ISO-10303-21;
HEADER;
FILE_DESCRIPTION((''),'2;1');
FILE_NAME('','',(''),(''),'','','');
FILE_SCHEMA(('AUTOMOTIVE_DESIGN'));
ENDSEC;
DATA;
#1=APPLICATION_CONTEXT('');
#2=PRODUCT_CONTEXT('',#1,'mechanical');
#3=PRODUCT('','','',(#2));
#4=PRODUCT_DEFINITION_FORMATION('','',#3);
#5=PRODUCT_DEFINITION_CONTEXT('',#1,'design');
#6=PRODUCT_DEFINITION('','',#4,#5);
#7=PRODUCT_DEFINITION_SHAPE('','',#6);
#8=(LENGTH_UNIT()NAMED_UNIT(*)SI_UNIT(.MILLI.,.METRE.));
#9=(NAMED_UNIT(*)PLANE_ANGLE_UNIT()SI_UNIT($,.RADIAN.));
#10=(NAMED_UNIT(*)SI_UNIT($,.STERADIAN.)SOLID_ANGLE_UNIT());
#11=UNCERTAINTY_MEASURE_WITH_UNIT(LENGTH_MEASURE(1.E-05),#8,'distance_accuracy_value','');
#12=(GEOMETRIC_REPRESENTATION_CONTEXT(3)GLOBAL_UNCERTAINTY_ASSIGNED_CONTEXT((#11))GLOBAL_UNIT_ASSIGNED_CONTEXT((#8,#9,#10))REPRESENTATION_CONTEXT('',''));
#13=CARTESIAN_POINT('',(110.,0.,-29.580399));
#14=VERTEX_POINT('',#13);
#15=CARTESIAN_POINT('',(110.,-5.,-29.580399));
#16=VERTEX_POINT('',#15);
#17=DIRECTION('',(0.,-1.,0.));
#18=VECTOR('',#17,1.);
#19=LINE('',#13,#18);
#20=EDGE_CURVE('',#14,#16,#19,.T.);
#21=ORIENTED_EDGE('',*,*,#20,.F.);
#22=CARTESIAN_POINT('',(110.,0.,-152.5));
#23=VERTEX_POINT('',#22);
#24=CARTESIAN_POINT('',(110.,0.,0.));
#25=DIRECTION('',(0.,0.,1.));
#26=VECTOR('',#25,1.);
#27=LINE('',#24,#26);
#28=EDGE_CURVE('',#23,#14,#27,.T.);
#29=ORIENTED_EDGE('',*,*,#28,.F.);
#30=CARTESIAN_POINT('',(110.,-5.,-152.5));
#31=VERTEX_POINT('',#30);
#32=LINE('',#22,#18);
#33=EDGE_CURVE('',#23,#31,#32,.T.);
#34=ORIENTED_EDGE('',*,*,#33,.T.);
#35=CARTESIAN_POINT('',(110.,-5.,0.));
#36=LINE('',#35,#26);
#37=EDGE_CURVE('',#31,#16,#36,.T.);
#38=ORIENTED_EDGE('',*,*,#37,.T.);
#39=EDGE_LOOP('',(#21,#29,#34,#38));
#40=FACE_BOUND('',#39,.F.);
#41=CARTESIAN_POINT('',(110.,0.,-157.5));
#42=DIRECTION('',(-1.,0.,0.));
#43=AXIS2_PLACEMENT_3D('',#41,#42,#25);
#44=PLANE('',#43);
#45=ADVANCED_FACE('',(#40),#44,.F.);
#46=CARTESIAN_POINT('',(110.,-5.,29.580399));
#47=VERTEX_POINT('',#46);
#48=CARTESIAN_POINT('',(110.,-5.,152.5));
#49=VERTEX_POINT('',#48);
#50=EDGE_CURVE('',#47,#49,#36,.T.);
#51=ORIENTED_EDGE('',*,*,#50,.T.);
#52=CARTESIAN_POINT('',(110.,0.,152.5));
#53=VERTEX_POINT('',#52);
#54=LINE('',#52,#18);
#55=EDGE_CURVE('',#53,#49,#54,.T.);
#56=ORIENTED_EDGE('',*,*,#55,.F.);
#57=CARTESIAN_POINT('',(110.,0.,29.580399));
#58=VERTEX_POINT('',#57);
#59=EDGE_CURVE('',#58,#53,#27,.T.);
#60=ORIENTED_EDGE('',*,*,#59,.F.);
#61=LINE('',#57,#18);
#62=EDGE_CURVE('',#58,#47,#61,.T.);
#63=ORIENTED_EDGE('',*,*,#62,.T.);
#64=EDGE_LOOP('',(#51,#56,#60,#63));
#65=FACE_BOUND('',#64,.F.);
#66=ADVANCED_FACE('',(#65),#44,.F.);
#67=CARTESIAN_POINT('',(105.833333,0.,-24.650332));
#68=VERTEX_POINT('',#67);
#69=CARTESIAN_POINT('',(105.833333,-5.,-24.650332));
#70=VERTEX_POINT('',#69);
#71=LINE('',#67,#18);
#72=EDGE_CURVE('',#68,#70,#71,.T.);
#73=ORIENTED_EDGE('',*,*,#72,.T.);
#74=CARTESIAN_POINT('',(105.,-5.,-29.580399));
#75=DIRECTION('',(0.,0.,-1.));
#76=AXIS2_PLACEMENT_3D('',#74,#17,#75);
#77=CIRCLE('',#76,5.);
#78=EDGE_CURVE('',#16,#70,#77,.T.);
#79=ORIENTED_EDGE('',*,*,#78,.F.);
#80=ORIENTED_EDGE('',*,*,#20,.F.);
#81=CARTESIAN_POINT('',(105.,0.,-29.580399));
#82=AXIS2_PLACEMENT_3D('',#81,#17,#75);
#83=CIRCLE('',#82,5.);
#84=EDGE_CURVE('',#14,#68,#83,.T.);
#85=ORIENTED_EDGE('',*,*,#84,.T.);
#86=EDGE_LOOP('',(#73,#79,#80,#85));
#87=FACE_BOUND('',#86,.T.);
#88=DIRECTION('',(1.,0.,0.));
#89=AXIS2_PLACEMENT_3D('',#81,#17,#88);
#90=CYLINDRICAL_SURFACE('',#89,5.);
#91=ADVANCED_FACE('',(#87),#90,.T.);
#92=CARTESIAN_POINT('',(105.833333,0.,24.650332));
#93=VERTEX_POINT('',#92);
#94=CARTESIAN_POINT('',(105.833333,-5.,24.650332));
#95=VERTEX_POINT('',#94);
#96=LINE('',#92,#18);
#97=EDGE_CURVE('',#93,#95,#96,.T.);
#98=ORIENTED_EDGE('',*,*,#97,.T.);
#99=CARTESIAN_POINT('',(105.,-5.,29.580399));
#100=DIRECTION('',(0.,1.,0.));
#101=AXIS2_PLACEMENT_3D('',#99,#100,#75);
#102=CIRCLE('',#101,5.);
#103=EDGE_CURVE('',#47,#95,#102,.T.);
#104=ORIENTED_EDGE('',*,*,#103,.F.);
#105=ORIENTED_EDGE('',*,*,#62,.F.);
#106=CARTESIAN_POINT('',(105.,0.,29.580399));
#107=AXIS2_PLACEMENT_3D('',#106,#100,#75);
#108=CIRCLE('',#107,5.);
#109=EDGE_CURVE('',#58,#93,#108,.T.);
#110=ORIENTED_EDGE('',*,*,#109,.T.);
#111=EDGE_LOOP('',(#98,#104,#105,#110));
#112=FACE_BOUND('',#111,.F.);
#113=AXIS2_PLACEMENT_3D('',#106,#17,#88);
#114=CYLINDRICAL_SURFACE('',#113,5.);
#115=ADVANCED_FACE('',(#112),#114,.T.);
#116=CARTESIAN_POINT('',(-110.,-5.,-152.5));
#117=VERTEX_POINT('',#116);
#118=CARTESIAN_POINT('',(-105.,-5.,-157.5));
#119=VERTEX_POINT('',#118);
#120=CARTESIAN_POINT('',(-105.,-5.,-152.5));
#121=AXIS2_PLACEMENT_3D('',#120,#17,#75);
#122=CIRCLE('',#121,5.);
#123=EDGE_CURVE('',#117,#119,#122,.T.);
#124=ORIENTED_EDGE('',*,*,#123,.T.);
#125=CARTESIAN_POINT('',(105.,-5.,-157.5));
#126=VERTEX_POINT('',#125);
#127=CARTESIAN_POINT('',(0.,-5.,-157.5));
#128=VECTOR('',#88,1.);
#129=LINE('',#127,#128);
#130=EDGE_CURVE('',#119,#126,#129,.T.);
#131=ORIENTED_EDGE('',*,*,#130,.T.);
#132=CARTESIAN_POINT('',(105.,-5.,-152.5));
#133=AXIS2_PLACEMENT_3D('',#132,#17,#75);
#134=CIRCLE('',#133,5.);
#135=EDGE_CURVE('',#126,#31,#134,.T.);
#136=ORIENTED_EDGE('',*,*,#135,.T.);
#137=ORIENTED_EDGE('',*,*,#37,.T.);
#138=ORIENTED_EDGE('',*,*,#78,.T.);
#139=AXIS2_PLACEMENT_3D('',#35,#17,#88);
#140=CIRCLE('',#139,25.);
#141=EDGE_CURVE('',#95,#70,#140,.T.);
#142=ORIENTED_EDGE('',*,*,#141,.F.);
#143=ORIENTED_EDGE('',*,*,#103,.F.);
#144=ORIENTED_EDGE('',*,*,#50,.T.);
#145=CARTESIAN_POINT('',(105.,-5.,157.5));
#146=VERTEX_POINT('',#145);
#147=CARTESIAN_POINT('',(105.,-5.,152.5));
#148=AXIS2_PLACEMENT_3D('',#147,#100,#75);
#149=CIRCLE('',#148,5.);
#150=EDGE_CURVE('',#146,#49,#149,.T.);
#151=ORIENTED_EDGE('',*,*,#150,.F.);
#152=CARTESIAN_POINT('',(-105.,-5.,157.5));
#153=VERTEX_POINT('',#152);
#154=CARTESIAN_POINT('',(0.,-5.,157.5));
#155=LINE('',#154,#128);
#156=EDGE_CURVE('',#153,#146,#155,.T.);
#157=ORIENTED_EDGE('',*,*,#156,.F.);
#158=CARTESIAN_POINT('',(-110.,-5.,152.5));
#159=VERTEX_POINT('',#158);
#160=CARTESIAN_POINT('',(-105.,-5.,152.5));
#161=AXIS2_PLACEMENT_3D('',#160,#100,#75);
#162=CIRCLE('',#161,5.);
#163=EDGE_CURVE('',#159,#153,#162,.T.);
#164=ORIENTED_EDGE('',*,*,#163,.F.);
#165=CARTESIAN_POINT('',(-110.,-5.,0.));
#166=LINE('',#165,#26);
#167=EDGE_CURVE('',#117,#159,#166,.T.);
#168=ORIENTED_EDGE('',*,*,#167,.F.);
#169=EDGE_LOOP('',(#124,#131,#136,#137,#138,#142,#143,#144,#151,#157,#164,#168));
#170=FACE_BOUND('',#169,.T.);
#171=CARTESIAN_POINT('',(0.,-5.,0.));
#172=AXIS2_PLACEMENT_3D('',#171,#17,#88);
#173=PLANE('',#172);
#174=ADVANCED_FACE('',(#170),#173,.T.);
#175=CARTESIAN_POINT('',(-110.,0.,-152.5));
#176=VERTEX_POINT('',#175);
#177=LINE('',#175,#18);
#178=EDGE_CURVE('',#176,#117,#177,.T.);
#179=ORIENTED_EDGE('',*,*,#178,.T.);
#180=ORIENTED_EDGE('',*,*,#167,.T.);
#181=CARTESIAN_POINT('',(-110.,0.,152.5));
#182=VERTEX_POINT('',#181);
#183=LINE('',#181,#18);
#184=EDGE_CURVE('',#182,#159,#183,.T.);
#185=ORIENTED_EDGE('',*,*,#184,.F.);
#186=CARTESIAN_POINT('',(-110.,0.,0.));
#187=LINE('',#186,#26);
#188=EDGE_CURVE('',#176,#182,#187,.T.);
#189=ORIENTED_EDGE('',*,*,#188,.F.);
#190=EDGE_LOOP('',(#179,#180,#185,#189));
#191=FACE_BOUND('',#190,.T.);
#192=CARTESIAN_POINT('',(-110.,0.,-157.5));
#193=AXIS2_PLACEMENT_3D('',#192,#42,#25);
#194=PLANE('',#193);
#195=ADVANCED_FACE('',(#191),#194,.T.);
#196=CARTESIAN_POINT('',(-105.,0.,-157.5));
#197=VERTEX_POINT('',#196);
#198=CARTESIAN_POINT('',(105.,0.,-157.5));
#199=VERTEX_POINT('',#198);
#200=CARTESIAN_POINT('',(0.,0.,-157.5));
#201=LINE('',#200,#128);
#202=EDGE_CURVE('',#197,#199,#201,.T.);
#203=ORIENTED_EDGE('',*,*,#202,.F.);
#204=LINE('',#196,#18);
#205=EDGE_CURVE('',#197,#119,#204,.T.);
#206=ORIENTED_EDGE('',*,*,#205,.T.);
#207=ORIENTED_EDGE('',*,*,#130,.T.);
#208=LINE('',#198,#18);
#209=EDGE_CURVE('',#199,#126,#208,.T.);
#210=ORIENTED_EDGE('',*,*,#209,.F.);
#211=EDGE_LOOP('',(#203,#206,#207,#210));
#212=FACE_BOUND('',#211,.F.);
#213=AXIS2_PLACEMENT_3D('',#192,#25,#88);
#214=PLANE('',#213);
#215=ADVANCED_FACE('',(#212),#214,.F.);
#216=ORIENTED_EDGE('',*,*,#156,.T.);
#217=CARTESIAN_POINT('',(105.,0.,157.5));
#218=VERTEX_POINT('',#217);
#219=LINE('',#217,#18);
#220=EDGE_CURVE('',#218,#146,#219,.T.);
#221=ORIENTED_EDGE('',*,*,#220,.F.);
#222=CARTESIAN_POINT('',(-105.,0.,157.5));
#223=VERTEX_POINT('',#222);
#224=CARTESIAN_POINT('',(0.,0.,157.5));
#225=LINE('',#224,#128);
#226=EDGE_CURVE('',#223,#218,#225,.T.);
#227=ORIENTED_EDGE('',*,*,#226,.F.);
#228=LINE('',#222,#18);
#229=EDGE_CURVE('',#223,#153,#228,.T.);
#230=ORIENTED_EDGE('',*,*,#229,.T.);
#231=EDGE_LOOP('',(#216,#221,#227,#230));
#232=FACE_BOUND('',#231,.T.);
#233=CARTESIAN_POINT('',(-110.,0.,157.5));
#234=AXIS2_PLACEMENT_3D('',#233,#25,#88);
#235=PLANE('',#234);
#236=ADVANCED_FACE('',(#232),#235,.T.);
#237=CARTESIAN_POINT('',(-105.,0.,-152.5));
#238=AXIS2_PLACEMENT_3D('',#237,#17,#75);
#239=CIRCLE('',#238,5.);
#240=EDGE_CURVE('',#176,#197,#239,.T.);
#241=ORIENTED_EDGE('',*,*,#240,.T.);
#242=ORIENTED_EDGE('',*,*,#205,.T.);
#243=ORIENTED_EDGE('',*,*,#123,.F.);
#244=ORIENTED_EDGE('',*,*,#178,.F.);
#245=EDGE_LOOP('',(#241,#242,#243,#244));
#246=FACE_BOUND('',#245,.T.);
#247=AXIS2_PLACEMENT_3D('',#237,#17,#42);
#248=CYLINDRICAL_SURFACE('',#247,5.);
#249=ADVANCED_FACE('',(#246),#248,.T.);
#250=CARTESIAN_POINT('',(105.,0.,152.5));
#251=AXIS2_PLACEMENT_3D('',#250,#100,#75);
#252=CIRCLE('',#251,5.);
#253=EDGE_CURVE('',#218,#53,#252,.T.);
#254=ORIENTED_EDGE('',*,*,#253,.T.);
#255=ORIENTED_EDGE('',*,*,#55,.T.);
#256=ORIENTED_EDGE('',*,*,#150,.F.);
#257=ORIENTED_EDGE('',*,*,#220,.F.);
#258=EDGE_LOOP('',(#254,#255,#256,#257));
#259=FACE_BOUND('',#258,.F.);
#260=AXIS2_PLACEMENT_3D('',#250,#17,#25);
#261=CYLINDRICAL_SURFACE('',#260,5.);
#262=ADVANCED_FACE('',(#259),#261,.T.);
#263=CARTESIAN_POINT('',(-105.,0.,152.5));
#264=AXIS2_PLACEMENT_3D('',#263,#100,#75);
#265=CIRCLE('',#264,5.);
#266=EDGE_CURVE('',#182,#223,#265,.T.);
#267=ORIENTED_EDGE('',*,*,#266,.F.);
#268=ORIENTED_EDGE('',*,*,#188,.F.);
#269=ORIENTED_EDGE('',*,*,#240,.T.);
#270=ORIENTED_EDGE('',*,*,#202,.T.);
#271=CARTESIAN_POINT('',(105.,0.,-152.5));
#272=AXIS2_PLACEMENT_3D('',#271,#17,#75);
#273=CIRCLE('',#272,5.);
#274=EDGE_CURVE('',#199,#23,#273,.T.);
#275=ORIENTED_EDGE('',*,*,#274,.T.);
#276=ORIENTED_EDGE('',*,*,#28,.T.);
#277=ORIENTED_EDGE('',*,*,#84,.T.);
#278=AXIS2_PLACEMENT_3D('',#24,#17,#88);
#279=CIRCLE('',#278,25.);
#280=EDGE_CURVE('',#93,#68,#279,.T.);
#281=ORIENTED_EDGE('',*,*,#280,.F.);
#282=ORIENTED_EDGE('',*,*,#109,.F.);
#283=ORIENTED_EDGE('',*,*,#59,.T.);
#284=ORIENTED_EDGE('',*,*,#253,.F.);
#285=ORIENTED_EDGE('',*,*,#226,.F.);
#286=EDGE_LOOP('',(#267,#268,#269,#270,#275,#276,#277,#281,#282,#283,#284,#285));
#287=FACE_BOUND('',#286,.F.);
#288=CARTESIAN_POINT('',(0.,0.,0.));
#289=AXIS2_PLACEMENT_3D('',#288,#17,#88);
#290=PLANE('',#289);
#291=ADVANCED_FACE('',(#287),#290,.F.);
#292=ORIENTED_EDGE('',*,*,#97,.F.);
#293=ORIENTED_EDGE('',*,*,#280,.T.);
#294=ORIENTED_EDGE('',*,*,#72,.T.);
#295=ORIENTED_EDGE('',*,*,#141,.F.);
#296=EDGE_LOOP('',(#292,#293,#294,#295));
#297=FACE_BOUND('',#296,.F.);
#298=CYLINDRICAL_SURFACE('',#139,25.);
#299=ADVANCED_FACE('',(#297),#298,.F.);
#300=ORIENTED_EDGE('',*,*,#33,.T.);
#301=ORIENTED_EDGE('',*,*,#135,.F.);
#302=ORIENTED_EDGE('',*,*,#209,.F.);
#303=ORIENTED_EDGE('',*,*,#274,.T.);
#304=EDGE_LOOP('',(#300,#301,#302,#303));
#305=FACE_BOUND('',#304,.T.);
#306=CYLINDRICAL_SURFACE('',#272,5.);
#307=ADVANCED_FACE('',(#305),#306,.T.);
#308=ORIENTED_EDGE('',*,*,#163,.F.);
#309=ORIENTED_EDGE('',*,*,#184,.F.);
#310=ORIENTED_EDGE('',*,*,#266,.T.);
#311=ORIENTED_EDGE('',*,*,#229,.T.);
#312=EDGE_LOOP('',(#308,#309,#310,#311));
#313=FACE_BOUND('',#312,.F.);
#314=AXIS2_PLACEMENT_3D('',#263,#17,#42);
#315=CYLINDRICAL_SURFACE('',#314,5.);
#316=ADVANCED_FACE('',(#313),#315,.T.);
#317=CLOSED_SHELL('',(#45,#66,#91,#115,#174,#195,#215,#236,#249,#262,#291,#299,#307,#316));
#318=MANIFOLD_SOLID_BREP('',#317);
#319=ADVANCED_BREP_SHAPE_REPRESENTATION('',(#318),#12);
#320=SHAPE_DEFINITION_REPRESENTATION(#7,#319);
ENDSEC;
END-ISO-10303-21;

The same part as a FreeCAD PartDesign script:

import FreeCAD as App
import Part
import Sketcher
Q = App.Units.Quantity


def edges_at(feature, points):
    """Names of the edges that pass closest to the given points."""
    edges = feature.Shape.Edges
    near = lambda p: min(range(len(edges)), key=lambda i: edges[i].distToShape(Part.Vertex(*p))[0])
    return sorted({f"Edge{near(p) + 1}" for p in points})


def add_polygon(sketch, points):
    """Adds a closed chain of lines whose ends are joined by coincident constraints."""
    first, n = sketch.GeometryCount, len(points)
    for a, b in zip(points, points[1:] + points[:1]):
        sketch.addGeometry(Part.LineSegment(App.Vector(*a, 0), App.Vector(*b, 0)), False)
    for i in range(n):
        sketch.addConstraint(Sketcher.Constraint("Coincident", first + i, 2, first + (i + 1) % n, 1))

doc = App.newDocument("Part")
body = doc.addObject("PartDesign::Body", "Body")

# Sketch on XZ plane
sketch1 = body.newObject("Sketcher::SketchObject", "Sketch")
sketch1.AttachmentSupport = (doc.getObject("XZ_Plane"), [""])
sketch1.MapMode = "FlatFace"
add_polygon(sketch1, [(-110, 158), (-110, -158), (110, -158), (110, 158)])  # lines 0-3
sketch1.addConstraint([
    Sketcher.Constraint("Vertical", 0),
    Sketcher.Constraint("Horizontal", 1),
    Sketcher.Constraint("Vertical", 2),
    Sketcher.Constraint("Horizontal", 3),
    Sketcher.Constraint("Symmetric", 0, 2, 2, 2, -1, 1),
    Sketcher.Constraint("DistanceX", 1, 1, 1, 2, Q("220 mm")),
    Sketcher.Constraint("DistanceY", 0, 2, 0, 1, Q("315 mm")),
])
pad1 = body.newObject("PartDesign::Pad", "Pad")
pad1.Profile = sketch1
pad1.Length = 5

# Sketch on XZ plane
sketch2 = body.newObject("Sketcher::SketchObject", "Sketch001")
sketch2.AttachmentSupport = (doc.getObject("XZ_Plane"), [""])
sketch2.MapMode = "FlatFace"
sketch2.AttachmentOffset = App.Placement(App.Vector(0, 0, 5), App.Rotation())
sketch2.addGeometry(Part.Circle(App.Vector(110, 0, 0), App.Vector(0, 0, 1), 25), False)
sketch2.addConstraint([
    Sketcher.Constraint("PointOnObject", 0, 3, -1),
    Sketcher.Constraint("Diameter", 0, Q("50 mm")),
    Sketcher.Constraint("DistanceX", -1, 1, 0, 3, Q("110 mm")),
])
pocket1 = body.newObject("PartDesign::Pocket", "Pocket")
pocket1.Profile = sketch2
pocket1.Length = 25
doc.recompute()

fillet = body.newObject("PartDesign::Fillet", "Fillet")
fillet.Base = (pocket1, edges_at(pocket1, [
    (110, -2.5, -25),
    (110, -2.5, 25),
    (110, -2.5, 157.5),
    (-110, -2.5, 157.5),
    (-110, -2.5, -157.5),
    (110, -2.5, -157.5),
]))
fillet.Radius = 5

doc.recompute()
